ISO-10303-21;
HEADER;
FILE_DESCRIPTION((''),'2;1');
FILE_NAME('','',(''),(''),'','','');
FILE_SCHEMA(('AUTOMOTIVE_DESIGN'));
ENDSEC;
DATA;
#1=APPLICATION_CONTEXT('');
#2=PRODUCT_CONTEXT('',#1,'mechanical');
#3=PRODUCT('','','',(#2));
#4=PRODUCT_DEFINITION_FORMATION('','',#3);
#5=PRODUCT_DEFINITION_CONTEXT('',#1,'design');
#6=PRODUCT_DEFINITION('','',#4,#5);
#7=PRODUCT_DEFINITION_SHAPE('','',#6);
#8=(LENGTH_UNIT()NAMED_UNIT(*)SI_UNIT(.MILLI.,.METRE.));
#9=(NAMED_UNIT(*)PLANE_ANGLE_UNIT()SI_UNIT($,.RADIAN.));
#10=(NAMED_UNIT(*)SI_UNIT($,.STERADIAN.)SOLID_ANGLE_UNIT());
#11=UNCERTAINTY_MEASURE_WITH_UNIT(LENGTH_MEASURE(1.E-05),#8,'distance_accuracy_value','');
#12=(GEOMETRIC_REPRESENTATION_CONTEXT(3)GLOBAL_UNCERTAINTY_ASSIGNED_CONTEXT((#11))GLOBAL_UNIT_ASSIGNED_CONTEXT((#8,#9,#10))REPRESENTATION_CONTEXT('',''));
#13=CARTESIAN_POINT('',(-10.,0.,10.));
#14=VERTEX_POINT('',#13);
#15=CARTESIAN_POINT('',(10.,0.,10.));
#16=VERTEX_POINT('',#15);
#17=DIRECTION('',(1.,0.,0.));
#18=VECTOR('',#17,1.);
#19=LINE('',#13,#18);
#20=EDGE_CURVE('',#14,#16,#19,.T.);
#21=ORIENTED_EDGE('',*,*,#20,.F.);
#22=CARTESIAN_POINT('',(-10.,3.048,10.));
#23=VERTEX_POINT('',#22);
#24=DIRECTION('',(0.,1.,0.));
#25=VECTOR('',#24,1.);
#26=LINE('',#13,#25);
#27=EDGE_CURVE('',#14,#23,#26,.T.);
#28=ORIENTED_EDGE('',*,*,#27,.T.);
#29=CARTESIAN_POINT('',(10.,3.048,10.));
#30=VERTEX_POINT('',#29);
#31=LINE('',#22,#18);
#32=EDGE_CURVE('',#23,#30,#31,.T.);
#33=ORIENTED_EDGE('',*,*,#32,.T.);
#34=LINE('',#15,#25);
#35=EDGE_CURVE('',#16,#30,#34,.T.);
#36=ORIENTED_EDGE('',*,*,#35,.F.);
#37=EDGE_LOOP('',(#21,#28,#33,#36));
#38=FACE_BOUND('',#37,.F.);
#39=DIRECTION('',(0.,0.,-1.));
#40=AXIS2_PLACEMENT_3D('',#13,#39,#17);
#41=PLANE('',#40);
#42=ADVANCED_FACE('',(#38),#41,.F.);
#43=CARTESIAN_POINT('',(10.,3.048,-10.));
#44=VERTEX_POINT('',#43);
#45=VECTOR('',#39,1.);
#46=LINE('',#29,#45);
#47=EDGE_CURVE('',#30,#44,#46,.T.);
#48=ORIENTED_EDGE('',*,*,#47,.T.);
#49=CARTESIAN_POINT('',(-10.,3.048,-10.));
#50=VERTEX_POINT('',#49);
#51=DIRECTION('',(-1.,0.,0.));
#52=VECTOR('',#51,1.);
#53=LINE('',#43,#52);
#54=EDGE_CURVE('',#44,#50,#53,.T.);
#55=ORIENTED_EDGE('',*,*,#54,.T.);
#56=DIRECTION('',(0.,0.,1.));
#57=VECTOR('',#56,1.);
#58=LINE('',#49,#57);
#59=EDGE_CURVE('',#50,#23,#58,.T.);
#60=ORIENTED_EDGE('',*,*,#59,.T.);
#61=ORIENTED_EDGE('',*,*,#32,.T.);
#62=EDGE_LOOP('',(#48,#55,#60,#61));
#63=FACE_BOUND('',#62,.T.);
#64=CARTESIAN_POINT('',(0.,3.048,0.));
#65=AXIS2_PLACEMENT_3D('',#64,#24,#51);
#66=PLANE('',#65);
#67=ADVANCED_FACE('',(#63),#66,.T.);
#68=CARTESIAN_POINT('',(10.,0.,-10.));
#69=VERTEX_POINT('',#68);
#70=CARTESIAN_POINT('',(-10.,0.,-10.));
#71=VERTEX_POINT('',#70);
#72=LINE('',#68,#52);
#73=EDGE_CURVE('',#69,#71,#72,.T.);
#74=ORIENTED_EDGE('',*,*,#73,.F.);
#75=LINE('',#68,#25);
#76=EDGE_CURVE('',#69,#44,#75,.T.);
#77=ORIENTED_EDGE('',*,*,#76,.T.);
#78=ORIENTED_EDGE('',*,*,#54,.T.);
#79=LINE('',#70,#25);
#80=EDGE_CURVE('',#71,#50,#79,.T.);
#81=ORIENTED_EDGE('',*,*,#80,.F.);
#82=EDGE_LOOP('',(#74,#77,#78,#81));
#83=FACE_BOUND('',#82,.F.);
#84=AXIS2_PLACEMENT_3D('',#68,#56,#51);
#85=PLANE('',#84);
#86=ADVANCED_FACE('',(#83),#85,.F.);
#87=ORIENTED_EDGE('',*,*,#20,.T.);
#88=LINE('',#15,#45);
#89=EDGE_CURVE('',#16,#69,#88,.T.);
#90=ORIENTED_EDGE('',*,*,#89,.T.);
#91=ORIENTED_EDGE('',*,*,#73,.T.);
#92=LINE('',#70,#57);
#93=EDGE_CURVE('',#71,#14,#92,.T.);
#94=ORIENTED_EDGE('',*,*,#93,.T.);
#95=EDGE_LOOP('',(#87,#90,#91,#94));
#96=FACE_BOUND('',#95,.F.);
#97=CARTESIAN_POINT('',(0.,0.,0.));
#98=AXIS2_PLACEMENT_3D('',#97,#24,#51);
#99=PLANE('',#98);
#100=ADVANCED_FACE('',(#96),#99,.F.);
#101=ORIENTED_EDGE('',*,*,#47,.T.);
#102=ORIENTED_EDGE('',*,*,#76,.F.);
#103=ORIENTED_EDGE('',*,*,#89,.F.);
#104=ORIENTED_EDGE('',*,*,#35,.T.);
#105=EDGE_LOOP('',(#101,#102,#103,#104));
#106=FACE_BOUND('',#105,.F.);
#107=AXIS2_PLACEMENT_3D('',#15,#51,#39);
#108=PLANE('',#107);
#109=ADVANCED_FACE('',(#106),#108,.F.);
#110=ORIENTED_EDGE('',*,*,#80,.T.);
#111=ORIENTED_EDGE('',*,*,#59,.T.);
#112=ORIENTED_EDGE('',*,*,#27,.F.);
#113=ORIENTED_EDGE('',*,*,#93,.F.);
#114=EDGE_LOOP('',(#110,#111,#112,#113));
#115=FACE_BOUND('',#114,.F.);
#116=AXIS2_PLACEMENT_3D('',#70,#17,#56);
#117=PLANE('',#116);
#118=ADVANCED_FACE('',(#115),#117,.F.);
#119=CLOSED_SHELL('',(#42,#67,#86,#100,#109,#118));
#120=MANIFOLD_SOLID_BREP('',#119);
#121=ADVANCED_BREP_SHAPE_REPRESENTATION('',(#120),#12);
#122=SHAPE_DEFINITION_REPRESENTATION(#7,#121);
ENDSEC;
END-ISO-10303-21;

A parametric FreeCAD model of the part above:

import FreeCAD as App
import Part
import Sketcher
Q = App.Units.Quantity

doc = App.newDocument("Part")
params = doc.addObject("Spreadsheet::Sheet", "Params")
for row, (alias, value) in enumerate([
    ("pad1_length", "0.12 in"),
], start=1):
    params.set(f"A{row}", alias)
    params.set(f"B{row}", "=" + value)
    params.setAlias(f"B{row}", alias)

body = doc.addObject("PartDesign::Body", "Body")

sketch1 = body.newObject("Sketcher::SketchObject", "Sketch")
sketch1.AttachmentSupport = (doc.getObject("XZ_Plane"), [""])
sketch1.MapMode = "FlatFace"
sketch1.addGeometry([
    Part.LineSegment(App.Vector(10, 10, 0), App.Vector(10, -10, 0)),
    Part.LineSegment(App.Vector(10, -10, 0), App.Vector(-10, -10, 0)),
    Part.LineSegment(App.Vector(-10, -10, 0), App.Vector(-10, 10, 0)),
    Part.LineSegment(App.Vector(-10, 10, 0), App.Vector(10, 10, 0)),
], False)
sketch1.addConstraint([
    Sketcher.Constraint("Coincident", 0, 2, 1, 1),
    Sketcher.Constraint("Coincident", 1, 2, 2, 1),
    Sketcher.Constraint("Coincident", 2, 2, 3, 1),
    Sketcher.Constraint("Coincident", 3, 2, 0, 1),
    Sketcher.Constraint("Vertical", 0),
    Sketcher.Constraint("Horizontal", 1),
    Sketcher.Constraint("Vertical", 2),
    Sketcher.Constraint("Horizontal", 3),
    Sketcher.Constraint("Symmetric", 0, 2, 2, 2, -1, 1),
    Sketcher.Constraint("Equal", 3, 0),
    Sketcher.Constraint("DistanceX", 1, 2, 1, 1, Q("0.7874 in")),
])
pad1 = body.newObject("PartDesign::Pad", "Pad")
pad1.Profile = sketch1
pad1.setExpression("Length", "Params.pad1_length")
pad1.Reversed = True

doc.recompute()
